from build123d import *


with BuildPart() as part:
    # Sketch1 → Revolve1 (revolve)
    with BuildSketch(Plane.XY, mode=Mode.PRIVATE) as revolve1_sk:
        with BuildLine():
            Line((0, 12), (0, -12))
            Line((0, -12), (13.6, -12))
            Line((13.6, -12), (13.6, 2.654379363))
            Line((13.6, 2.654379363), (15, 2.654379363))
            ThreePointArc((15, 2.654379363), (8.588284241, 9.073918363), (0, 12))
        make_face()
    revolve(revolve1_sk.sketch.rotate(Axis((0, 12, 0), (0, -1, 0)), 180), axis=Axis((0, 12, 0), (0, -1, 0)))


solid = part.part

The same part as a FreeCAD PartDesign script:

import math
import FreeCAD as App
import Part
import Sketcher
Q = App.Units.Quantity

doc = App.newDocument("Part")
body = doc.addObject("PartDesign::Body", "Body")

# Sketch on XY plane
sketch1 = doc.addObject("Sketcher::SketchObject", "Sketch")
body.addObject(sketch1)
sketch1.AttachmentSupport = (doc.XY_Plane, [""])
sketch1.MapMode = "FlatFace"
sketch1.addGeometry(Part.LineSegment(App.Vector(0, 12, 0), App.Vector(0, -12, 0)), False)
sketch1.addGeometry(Part.LineSegment(App.Vector(0, -12, 0), App.Vector(13.6, -12, 0)), False)
sketch1.addGeometry(Part.LineSegment(App.Vector(13.6, -12, 0), App.Vector(13.6, 2.654379, 0)), False)
sketch1.addGeometry(Part.LineSegment(App.Vector(13.6, 2.654379, 0), App.Vector(15, 2.654379, 0)), False)
sketch1.addGeometry(Part.ArcOfCircle(Part.Circle(App.Vector(-1.987776, -7.900974, 0), App.Vector(0, 0, 1), 20), math.radians(31.854747), math.radians(84.296025)), False)
sketch1.addConstraint(Sketcher.Constraint("Coincident", 0, 2, 1, 1))
sketch1.addConstraint(Sketcher.Constraint("Coincident", 1, 2, 2, 1))
sketch1.addConstraint(Sketcher.Constraint("Coincident", 2, 2, 3, 1))
sketch1.addConstraint(Sketcher.Constraint("Coincident", 3, 2, 4, 1))
sketch1.addConstraint(Sketcher.Constraint("Coincident", 4, 2, 0, 1))
sketch1.addConstraint(Sketcher.Constraint("Vertical", 0))
sketch1.addConstraint(Sketcher.Constraint("Horizontal", 1))
sketch1.addConstraint(Sketcher.Constraint("Vertical", 2))
sketch1.addConstraint(Sketcher.Constraint("Horizontal", 3))
sketch1.addConstraint(Sketcher.Constraint("Symmetric", 0, 2, 4, 2, -1, 1))
sketch1.addConstraint(Sketcher.Constraint("Radius", 4, Q("20 mm")))
sketch1.addConstraint(Sketcher.Constraint("DistanceY", 0, 2, 0, 1, Q("24 mm")))
sketch1.addConstraint(Sketcher.Constraint("DistanceX", 1, 1, 1, 2, Q("13.6 mm")))
sketch1.addConstraint(Sketcher.Constraint("DistanceX", 3, 1, 3, 2, Q("1.4 mm")))
sketch1.addConstraint(Sketcher.Constraint("DistanceY", 2, 1, 2, 2, Q("14.654379 mm")))
revolution = doc.addObject("PartDesign::Revolution", "Revolution")
body.addObject(revolution)
revolution.Profile = sketch1
revolution.ReferenceAxis = (sketch1, ["V_Axis"])
revolution.Angle = 360

doc.recompute()
